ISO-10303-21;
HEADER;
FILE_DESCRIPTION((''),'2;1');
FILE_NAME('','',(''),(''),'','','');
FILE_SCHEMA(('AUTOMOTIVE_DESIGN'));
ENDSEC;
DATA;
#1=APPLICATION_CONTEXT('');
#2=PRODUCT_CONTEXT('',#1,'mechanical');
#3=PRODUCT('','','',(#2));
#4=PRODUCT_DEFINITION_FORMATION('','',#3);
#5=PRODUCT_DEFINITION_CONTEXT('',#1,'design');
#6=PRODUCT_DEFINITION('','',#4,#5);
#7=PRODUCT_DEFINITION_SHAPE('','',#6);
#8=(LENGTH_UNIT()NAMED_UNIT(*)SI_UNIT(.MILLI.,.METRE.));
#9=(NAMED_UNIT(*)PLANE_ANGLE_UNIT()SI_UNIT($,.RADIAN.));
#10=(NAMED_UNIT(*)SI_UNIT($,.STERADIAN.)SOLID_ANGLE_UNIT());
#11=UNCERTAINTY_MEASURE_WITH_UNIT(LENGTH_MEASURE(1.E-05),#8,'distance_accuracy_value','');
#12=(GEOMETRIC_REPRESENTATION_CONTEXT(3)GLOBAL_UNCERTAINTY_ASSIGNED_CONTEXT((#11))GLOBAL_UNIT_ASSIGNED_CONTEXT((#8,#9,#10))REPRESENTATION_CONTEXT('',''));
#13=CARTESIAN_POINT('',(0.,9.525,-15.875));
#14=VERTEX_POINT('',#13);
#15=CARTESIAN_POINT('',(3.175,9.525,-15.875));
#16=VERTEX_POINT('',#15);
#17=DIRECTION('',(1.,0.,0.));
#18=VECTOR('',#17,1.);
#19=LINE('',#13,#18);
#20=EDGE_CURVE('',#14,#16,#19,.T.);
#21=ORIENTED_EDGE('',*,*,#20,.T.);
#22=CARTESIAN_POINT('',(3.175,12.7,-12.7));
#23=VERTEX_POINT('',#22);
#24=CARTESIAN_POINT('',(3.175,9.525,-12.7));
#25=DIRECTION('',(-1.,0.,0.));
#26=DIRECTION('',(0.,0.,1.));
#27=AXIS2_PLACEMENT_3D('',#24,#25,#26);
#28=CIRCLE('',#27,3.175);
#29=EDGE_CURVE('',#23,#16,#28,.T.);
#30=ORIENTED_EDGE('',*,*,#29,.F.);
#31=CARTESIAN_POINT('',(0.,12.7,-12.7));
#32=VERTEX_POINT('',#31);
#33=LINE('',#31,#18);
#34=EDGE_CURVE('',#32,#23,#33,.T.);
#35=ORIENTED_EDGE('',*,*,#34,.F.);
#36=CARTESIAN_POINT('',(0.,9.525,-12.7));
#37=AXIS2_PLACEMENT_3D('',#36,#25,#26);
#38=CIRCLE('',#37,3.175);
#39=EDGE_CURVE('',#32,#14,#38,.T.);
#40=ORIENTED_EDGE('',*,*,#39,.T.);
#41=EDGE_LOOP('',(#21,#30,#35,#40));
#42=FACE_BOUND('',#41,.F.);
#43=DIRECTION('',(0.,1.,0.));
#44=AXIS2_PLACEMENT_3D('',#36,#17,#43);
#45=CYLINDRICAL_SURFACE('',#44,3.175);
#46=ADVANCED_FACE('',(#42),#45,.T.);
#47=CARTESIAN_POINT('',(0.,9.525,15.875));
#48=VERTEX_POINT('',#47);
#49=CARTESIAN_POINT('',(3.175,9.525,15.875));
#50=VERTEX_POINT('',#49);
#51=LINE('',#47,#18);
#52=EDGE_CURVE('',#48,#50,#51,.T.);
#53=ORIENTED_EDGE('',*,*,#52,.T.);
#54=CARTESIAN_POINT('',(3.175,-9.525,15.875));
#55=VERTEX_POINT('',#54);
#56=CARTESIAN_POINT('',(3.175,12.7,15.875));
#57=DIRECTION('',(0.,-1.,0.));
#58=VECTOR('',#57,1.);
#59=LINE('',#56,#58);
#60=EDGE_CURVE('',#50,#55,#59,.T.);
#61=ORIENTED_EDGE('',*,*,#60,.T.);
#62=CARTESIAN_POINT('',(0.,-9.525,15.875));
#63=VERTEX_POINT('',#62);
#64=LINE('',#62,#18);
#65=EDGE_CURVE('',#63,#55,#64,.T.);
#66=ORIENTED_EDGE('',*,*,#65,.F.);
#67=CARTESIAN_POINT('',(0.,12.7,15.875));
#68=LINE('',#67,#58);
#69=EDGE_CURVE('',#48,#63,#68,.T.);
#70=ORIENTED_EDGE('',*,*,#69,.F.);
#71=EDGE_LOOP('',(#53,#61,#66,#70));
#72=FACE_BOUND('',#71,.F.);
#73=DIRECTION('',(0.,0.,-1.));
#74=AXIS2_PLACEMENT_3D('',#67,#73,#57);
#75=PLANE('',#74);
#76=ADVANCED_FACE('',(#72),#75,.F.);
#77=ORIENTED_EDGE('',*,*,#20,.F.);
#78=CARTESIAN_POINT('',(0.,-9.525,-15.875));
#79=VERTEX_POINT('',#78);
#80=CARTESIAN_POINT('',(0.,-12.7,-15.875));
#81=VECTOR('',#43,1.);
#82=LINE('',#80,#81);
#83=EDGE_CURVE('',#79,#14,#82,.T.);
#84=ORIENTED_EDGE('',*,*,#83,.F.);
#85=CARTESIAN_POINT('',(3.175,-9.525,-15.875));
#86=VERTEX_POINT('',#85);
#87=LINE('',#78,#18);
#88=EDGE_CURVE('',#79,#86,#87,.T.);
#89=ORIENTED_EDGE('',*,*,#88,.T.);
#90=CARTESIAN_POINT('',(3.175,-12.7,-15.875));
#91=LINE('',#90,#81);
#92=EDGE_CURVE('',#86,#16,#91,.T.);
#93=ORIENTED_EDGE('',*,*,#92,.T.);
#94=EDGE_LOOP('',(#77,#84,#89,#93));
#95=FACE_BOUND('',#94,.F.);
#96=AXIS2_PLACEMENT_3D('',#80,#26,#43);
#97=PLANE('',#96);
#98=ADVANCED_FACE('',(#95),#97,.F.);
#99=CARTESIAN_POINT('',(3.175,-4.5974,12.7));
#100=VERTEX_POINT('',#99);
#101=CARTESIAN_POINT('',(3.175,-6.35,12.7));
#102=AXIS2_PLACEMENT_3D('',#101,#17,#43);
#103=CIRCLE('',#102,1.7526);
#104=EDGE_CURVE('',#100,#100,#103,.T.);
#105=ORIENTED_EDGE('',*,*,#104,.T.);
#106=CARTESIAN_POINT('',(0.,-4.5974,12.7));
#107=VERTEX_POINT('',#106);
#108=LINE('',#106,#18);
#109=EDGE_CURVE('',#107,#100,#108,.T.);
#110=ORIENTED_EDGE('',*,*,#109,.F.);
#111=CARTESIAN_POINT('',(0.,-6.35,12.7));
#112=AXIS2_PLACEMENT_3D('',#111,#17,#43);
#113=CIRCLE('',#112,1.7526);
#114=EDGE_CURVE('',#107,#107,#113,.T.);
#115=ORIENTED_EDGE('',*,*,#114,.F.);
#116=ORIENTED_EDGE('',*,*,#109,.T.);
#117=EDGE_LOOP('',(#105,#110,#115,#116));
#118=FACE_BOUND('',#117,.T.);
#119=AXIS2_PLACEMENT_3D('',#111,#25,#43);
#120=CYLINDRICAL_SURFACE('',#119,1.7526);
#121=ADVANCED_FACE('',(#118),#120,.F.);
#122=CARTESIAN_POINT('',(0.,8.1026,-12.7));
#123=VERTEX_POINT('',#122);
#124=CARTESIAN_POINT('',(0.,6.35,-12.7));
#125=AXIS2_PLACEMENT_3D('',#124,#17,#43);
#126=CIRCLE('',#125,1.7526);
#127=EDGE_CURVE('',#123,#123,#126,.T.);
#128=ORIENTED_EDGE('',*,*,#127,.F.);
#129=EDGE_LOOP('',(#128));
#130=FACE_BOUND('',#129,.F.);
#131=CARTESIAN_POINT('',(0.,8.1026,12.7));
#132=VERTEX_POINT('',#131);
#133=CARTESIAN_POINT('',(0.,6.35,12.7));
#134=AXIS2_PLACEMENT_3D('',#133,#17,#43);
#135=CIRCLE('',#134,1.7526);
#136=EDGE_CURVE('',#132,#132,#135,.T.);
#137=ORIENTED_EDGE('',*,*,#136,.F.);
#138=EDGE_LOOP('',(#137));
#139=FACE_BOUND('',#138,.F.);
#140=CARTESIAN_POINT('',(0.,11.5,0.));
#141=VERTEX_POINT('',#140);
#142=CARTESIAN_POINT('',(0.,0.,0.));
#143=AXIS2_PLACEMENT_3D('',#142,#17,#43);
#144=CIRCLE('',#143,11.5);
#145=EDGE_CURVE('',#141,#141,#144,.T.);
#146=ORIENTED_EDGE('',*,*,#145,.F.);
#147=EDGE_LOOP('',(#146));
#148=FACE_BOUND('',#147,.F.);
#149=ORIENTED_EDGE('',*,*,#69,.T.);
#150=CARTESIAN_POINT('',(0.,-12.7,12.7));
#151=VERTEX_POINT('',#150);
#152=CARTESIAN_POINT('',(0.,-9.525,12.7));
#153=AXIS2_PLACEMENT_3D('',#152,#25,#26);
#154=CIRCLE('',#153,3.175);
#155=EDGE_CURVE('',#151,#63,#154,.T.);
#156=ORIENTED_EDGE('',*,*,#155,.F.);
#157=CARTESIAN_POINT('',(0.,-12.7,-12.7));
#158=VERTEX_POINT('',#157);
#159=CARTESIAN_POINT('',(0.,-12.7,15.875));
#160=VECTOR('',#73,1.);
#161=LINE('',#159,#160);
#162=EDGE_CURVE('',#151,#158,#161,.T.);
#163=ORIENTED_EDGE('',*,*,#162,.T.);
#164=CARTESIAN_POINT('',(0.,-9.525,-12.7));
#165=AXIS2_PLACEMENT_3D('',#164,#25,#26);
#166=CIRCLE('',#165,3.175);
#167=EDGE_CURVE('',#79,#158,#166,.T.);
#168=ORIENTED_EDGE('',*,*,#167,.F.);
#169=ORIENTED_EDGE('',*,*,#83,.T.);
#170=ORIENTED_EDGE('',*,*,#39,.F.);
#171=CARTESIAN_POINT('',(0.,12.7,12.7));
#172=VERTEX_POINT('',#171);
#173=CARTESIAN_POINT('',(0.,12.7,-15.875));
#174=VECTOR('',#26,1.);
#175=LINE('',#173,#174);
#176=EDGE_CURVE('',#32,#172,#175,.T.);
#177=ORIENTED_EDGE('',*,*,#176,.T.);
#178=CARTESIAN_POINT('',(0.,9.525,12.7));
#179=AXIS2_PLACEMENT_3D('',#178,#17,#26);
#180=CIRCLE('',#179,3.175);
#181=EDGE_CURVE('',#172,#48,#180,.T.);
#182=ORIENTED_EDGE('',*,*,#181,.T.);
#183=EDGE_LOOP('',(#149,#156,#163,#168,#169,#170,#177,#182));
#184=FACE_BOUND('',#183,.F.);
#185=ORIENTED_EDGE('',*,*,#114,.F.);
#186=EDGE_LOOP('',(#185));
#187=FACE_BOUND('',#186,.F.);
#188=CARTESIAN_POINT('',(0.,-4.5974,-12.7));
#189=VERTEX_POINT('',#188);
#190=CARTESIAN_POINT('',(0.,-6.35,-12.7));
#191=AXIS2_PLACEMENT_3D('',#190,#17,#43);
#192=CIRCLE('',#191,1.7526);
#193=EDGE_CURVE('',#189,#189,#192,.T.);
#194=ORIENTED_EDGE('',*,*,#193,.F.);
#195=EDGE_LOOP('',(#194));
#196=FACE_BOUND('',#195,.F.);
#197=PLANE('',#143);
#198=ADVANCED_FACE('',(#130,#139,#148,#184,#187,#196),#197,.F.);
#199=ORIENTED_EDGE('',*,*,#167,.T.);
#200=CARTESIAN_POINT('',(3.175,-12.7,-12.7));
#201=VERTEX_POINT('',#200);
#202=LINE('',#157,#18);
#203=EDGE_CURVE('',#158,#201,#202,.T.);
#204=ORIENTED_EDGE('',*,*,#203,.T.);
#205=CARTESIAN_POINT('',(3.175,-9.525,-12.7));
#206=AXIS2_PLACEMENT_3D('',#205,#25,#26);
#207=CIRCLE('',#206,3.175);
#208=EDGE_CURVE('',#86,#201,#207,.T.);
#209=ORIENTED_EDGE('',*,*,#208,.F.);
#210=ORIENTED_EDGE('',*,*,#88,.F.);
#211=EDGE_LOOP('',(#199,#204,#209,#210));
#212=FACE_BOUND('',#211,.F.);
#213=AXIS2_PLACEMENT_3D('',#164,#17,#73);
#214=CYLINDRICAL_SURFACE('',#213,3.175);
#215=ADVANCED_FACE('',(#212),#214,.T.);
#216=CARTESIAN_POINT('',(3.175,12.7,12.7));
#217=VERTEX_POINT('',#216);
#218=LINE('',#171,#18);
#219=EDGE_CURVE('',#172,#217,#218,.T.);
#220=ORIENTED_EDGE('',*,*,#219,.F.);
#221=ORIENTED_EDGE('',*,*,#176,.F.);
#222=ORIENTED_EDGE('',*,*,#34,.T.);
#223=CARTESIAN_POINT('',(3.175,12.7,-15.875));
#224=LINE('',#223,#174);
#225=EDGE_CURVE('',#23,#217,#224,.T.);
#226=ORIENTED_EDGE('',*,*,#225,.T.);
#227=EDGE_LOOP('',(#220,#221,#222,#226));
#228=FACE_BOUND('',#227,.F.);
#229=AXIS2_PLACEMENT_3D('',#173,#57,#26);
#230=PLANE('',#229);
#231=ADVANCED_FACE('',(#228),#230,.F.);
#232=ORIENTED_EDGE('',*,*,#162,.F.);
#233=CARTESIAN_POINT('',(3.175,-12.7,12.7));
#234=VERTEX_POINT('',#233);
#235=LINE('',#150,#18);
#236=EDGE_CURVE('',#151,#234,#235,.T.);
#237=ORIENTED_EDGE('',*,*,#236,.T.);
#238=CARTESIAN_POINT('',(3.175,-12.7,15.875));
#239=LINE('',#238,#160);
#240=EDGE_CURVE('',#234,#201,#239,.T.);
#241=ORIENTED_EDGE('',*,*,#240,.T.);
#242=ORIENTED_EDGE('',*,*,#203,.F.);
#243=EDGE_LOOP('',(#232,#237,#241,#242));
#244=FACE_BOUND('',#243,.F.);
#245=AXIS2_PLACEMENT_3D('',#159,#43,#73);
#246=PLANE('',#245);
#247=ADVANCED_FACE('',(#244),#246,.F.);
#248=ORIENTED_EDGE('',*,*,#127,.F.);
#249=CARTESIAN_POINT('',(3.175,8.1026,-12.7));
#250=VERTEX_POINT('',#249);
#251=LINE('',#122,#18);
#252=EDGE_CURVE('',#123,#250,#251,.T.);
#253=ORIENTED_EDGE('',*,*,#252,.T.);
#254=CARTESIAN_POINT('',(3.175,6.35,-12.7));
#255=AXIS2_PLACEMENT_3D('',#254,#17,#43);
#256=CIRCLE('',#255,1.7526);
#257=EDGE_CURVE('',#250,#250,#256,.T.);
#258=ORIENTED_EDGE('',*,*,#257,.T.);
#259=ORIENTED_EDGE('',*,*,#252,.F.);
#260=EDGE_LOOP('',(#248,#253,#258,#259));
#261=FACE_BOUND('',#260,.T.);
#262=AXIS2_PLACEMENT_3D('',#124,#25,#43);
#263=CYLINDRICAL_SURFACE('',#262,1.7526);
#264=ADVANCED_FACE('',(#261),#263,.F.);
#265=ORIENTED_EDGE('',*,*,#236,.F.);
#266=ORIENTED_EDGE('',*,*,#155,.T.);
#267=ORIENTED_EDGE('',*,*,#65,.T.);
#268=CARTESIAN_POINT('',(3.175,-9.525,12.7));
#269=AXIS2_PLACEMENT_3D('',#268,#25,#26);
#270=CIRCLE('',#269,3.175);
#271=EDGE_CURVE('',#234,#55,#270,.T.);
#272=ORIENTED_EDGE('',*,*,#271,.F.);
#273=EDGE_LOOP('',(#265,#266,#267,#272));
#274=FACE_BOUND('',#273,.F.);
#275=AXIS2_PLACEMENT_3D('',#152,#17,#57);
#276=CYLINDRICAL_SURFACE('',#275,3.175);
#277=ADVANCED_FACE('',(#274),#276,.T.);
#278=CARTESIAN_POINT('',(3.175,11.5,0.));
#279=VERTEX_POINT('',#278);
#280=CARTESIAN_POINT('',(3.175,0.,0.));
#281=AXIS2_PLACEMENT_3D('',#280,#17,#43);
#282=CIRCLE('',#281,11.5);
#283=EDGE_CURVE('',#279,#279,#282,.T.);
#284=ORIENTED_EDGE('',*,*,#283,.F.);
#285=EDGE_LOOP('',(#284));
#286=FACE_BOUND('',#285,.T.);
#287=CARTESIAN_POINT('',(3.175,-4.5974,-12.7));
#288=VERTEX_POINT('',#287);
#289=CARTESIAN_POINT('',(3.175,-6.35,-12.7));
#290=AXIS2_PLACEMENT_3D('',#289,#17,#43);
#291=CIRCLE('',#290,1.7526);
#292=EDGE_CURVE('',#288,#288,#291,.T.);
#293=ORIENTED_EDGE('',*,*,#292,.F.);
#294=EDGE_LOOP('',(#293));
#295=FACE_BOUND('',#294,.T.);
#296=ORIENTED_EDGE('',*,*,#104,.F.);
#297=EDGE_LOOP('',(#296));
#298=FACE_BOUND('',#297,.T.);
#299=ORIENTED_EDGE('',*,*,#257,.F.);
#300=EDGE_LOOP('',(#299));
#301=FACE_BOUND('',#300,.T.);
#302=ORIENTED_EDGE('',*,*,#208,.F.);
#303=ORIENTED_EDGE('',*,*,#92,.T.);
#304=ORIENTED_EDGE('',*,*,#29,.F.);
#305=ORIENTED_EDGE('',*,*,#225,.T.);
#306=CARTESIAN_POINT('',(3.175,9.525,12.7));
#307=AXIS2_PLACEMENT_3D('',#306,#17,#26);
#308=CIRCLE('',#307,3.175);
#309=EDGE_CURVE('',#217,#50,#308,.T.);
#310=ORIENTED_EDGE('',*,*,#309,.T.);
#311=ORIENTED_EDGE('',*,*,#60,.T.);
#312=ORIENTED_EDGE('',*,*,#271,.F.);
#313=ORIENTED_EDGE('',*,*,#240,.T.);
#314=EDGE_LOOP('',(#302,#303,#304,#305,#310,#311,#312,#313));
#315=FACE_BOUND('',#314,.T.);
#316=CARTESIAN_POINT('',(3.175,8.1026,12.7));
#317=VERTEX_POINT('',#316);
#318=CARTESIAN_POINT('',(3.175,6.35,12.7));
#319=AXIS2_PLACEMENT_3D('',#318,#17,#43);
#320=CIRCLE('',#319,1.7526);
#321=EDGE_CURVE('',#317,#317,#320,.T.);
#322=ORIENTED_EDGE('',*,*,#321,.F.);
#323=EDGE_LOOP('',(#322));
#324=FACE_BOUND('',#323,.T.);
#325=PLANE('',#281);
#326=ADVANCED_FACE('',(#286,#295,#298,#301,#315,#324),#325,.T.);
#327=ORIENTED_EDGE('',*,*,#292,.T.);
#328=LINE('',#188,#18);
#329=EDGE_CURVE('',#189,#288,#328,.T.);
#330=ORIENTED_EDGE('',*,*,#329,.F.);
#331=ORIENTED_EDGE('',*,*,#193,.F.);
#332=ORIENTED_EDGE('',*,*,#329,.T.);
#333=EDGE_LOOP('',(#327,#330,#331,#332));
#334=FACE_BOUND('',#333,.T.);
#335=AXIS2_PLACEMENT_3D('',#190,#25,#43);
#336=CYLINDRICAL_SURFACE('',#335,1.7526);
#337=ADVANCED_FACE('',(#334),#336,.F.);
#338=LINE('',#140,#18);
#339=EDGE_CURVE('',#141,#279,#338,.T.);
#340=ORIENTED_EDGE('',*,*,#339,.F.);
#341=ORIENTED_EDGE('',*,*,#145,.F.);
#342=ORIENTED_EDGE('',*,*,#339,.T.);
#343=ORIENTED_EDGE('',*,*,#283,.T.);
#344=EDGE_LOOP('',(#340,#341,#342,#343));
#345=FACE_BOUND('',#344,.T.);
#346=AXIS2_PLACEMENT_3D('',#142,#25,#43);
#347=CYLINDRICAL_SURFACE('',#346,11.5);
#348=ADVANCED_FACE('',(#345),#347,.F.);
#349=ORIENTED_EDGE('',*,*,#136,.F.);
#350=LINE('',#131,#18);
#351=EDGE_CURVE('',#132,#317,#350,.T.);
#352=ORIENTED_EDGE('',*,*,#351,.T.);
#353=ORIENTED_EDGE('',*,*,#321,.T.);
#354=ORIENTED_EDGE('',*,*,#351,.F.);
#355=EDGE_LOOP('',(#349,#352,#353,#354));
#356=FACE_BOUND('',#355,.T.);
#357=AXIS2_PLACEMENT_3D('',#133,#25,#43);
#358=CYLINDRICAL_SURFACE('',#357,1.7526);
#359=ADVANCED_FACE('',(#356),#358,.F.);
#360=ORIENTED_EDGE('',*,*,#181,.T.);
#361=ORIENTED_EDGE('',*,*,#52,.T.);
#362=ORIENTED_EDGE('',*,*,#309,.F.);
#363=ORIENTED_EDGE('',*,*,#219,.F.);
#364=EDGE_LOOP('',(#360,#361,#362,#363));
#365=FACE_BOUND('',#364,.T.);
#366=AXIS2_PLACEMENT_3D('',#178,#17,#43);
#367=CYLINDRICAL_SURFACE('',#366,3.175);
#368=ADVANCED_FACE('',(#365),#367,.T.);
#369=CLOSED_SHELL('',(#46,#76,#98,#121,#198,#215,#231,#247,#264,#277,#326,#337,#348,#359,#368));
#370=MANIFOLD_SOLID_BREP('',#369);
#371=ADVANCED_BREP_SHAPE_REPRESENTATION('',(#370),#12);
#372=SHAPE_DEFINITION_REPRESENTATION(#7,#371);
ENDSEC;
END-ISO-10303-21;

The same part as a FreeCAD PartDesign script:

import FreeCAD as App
import Part
import Sketcher
Q = App.Units.Quantity


def edges_at(feature, points):
    """Names of the edges that pass closest to the given points."""
    edges = feature.Shape.Edges
    near = lambda p: min(range(len(edges)), key=lambda i: edges[i].distToShape(Part.Vertex(*p))[0])
    return sorted({f"Edge{near(p) + 1}" for p in points})


def add_polygon(sketch, points):
    """Adds a closed chain of lines whose ends are joined by coincident constraints."""
    first, n = sketch.GeometryCount, len(points)
    for a, b in zip(points, points[1:] + points[:1]):
        sketch.addGeometry(Part.LineSegment(App.Vector(*a, 0), App.Vector(*b, 0)), False)
    for i in range(n):
        sketch.addConstraint(Sketcher.Constraint("Coincident", first + i, 2, first + (i + 1) % n, 1))

doc = App.newDocument("Part")
params = doc.addObject("Spreadsheet::Sheet", "Params")
for row, (alias, value) in enumerate([
    ("sketch1_width", "1 in"),
    ("sketch1_diameter", "0.138 in"),
    ("sketch1_height", "1.25 in"),
    ("pad1_length", "0.125 in"),
    ("fillet_radius", "0.125 in"),
], start=1):
    params.set(f"A{row}", alias)
    params.set(f"B{row}", "=" + value)
    params.setAlias(f"B{row}", alias)

body = doc.addObject("PartDesign::Body", "Body")

sketch1 = body.newObject("Sketcher::SketchObject", "Sketch")
sketch1.AttachmentSupport = (doc.getObject("YZ_Plane"), [""])
sketch1.MapMode = "FlatFace"
add_polygon(sketch1, [(12.7, -15.9), (12.7, 15.9), (-12.7, 15.9), (-12.7, -15.9)])
sketch1.addGeometry(Part.Circle(App.Vector(-6.3, -12.7, 0), App.Vector(0, 0, 1), 1.8), False)
sketch1.addGeometry(Part.Circle(App.Vector(6.3, -12.7, 0), App.Vector(0, 0, 1), 1.8), False)
sketch1.addGeometry(Part.Circle(App.Vector(0, 0, 0), App.Vector(0, 0, 1), 11.5), False)
sketch1.addGeometry(Part.Circle(App.Vector(-6.3, 12.7, 0), App.Vector(0, 0, 1), 1.8), False)
sketch1.addGeometry(Part.Circle(App.Vector(6.3, 12.7, 0), App.Vector(0, 0, 1), 1.8), False)
sketch1.addConstraint([
    Sketcher.Constraint("Vertical", 0),
    Sketcher.Constraint("Horizontal", 1),
    Sketcher.Constraint("Vertical", 2),
    Sketcher.Constraint("Horizontal", 3),
    Sketcher.Constraint("Coincident", 6, 3, -1, 1),
    Sketcher.Constraint("Equal", 4, 5),
    Sketcher.Constraint("Equal", 5, 7),
    Sketcher.Constraint("Equal", 7, 8),
    Sketcher.Constraint("Symmetric", 5, 3, 7, 3, -1, 1),
    Sketcher.Constraint("Symmetric", 4, 3, 8, 3, -1, 1),
    Sketcher.Constraint("Symmetric", 0, 2, 2, 2, -1, 1),
    Sketcher.Constraint("Symmetric", 4, 3, 5, 3, -2),
    Sketcher.Constraint("DistanceX", 1, 2, 1, 1, Q("1 in")),
    Sketcher.Constraint("Diameter", 4, Q("0.138 in")),
    Sketcher.Constraint("DistanceY", 4, 3, 7, 3, Q("1 in")),
    Sketcher.Constraint("Diameter", 6, Q("0.9055 in")),
    Sketcher.Constraint("DistanceY", 0, 1, 0, 2, Q("1.25 in")),
    Sketcher.Constraint("DistanceX", 4, 3, 5, 3, Q("0.5 in")),
])
sketch1.setExpression("Constraints[16]", "Params.sketch1_width")
sketch1.setExpression("Constraints[17]", "Params.sketch1_diameter")
sketch1.setExpression("Constraints[20]", "Params.sketch1_height")
pad1 = body.newObject("PartDesign::Pad", "Pad")
pad1.Profile = sketch1
pad1.setExpression("Length", "Params.pad1_length")
doc.recompute()

fillet = body.newObject("PartDesign::Fillet", "Fillet")
fillet.Base = (pad1, edges_at(pad1, [
    (1.587, 12.7, 15.875),
    (1.587, -12.7, 15.875),
    (1.587, 12.7, -15.875),
    (1.587, -12.7, -15.875),
]))
fillet.setExpression("Radius", "Params.fillet_radius")

doc.recompute()
